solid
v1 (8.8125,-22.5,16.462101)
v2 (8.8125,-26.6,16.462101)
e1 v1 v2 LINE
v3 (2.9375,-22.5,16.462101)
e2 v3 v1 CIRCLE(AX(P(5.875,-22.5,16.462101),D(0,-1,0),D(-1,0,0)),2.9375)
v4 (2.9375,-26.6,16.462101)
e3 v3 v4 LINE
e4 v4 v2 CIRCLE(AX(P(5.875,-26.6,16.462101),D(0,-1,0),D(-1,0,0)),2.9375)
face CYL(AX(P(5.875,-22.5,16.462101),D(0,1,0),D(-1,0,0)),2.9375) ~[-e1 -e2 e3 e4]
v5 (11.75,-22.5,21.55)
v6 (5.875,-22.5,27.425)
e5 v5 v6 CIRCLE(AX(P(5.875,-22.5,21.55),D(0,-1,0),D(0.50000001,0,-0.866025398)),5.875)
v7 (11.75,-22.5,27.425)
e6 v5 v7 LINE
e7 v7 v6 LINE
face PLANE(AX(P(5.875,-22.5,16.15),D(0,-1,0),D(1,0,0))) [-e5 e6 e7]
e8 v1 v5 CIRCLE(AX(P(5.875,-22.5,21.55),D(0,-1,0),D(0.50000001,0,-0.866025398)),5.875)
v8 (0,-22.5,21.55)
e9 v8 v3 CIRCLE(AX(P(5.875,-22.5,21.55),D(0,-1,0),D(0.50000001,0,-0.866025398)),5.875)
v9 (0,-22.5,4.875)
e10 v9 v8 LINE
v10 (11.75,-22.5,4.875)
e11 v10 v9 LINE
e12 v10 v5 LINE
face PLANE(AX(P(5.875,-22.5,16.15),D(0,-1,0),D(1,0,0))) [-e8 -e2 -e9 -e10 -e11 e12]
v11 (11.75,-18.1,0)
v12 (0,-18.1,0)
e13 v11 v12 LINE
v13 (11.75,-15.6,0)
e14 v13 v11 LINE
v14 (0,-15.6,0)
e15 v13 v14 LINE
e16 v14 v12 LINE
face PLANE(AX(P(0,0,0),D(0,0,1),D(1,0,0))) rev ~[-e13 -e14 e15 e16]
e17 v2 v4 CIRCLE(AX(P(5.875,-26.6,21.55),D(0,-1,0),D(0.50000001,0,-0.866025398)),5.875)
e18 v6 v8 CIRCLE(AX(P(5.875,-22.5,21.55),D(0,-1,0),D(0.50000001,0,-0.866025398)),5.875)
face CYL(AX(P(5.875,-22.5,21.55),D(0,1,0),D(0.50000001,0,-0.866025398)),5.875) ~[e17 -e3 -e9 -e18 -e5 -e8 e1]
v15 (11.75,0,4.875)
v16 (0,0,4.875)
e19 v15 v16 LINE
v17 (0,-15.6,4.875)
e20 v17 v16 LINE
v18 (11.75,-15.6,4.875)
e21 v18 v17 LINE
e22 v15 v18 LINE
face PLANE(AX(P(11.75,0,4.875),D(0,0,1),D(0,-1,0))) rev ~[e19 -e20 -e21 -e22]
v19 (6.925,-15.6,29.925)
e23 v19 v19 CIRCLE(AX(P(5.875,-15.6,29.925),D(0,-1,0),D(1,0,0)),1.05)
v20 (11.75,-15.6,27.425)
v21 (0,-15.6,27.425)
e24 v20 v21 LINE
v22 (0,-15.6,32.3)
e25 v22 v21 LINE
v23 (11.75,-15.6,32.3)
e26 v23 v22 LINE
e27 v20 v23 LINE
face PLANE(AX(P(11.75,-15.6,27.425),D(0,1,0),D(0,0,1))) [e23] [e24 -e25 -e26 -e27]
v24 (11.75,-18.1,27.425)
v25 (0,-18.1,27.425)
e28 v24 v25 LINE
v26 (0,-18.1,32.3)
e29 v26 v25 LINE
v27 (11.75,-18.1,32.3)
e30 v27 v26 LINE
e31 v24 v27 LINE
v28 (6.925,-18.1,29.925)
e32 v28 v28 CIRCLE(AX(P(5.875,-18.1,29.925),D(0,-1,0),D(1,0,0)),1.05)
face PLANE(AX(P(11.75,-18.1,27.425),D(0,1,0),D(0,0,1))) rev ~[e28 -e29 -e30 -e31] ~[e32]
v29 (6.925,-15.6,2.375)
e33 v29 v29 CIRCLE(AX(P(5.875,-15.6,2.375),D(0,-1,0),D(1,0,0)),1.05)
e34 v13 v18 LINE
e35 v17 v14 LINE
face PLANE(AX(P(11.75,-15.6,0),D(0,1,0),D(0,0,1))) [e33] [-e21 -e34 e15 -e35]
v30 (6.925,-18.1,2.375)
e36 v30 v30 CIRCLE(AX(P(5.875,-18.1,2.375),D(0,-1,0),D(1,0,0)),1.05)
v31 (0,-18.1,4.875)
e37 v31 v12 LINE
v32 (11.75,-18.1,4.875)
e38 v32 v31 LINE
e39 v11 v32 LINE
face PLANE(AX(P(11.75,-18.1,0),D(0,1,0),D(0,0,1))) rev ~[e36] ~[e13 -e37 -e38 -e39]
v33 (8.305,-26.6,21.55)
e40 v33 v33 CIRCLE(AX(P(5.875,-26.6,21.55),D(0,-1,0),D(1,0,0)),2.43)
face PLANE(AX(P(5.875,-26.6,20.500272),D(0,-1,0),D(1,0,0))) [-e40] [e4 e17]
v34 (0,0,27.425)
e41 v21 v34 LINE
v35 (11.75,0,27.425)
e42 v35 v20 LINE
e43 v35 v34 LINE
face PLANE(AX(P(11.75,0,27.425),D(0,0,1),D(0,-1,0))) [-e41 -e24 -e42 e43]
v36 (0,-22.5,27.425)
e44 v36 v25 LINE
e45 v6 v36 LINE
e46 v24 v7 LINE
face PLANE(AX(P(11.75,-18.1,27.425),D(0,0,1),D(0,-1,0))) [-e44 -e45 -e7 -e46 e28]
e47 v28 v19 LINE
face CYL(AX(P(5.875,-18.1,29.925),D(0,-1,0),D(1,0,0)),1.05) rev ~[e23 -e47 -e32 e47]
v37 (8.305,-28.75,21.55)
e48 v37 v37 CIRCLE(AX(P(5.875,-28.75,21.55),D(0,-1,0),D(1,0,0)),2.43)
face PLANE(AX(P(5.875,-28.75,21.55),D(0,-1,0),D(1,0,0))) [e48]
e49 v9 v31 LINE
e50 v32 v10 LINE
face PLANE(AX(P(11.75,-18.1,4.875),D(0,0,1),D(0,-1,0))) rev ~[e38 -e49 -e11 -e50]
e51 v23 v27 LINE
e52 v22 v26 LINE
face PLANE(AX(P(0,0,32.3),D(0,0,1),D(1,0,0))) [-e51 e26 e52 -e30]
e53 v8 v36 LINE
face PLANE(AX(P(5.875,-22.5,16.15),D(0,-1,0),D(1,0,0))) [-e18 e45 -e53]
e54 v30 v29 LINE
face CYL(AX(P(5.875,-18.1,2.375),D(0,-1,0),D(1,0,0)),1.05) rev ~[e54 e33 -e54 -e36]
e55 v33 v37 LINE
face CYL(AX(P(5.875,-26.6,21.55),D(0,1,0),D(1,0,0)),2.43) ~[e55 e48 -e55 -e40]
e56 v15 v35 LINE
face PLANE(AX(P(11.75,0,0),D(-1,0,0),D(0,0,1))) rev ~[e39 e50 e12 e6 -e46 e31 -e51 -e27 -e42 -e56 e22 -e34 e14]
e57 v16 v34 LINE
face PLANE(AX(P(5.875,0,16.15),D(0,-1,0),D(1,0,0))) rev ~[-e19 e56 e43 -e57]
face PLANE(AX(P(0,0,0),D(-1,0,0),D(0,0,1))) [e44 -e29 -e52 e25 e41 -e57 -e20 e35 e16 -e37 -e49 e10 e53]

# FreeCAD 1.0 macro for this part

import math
import FreeCAD as App
import Part
import Sketcher

V = App.Vector
Q = App.Units.Quantity

doc = App.newDocument("Part")
body = doc.addObject("PartDesign::Body", "Body")

sketch1 = doc.addObject("Sketcher::SketchObject", "Sketch")
body.addObject(sketch1)
sketch1.AttachmentSupport = (doc.XZ_Plane, [""])
sketch1.MapMode = "FlatFace"
sketch1.addGeometry(Part.LineSegment(V(0, 32, 0), V(0, 0, 0)), False)
sketch1.addGeometry(Part.LineSegment(V(0, 0, 0), V(12, 0, 0)), False)
sketch1.addGeometry(Part.LineSegment(V(12, 0, 0), V(12, 32, 0)), False)
sketch1.addGeometry(Part.LineSegment(V(12, 32, 0), V(0, 32, 0)), False)
sketch1.addConstraint(Sketcher.Constraint("Coincident", 0, 2, 1, 1))
sketch1.addConstraint(Sketcher.Constraint("Coincident", 1, 2, 2, 1))
sketch1.addConstraint(Sketcher.Constraint("Coincident", 2, 2, 3, 1))
sketch1.addConstraint(Sketcher.Constraint("Coincident", 3, 2, 0, 1))
sketch1.addConstraint(Sketcher.Constraint("Vertical", 0))
sketch1.addConstraint(Sketcher.Constraint("Horizontal", 1))
sketch1.addConstraint(Sketcher.Constraint("Vertical", 2))
sketch1.addConstraint(Sketcher.Constraint("Horizontal", 3))
sketch1.addConstraint(Sketcher.Constraint("Coincident", 0, 2, -1, 1))
sketch1.addConstraint(Sketcher.Constraint("DistanceY", 0, 2, 0, 1, Q("32.3 mm")))
sketch1.addConstraint(Sketcher.Constraint("DistanceX", 1, 1, 1, 2, Q("11.75 mm")))
pad1 = doc.addObject("PartDesign::Pad", "Pad")
body.addObject(pad1)
pad1.Profile = sketch1
pad1.Length = 22.5

sketch2 = doc.addObject("Sketcher::SketchObject", "Sketch001")
body.addObject(sketch2)
sketch2.AttachmentSupport = (doc.YZ_Plane, [""])
sketch2.MapMode = "FlatFace"
sketch2.AttachmentOffset = App.Placement(V(0, 0, 11.75), App.Rotation())
sketch2.addGeometry(Part.LineSegment(V(-15.6, 27.4, 0), V(0, 27.4, 0)), False)
sketch2.addGeometry(Part.LineSegment(V(0, 27.4, 0), V(0, 32.3, 0)), False)
sketch2.addGeometry(Part.LineSegment(V(0, 32.3, 0), V(-15.6, 32.3, 0)), False)
sketch2.addGeometry(Part.LineSegment(V(-15.6, 32.3, 0), V(-15.6, 27.4, 0)), False)
sketch2.addGeometry(Part.LineSegment(V(-22.5, 27.4, 0), V(-18.1, 27.4, 0)), False)
sketch2.addGeometry(Part.LineSegment(V(-18.1, 27.4, 0), V(-18.1, 32.3, 0)), False)
sketch2.addGeometry(Part.LineSegment(V(-18.1, 32.3, 0), V(-22.5, 32.3, 0)), False)
sketch2.addGeometry(Part.LineSegment(V(-22.5, 32.3, 0), V(-22.5, 27.4, 0)), False)
sketch2.addGeometry(Part.LineSegment(V(-22.5, 0, 0), V(-18.1, 0, 0)), False)
sketch2.addGeometry(Part.LineSegment(V(-18.1, 0, 0), V(-18.1, 4.9, 0)), False)
sketch2.addGeometry(Part.LineSegment(V(-18.1, 4.9, 0), V(-22.5, 4.9, 0)), False)
sketch2.addGeometry(Part.LineSegment(V(-22.5, 4.9, 0), V(-22.5, 0, 0)), False)
sketch2.addGeometry(Part.LineSegment(V(-15.6, 0, 0), V(0, 0, 0)), False)
sketch2.addGeometry(Part.LineSegment(V(0, 0, 0), V(0, 4.9, 0)), False)
sketch2.addGeometry(Part.LineSegment(V(0, 4.9, 0), V(-15.6, 4.9, 0)), False)
sketch2.addGeometry(Part.LineSegment(V(-15.6, 4.9, 0), V(-15.6, 0, 0)), False)
sketch2.addConstraint(Sketcher.Constraint("Coincident", 0, 2, 1, 1))
sketch2.addConstraint(Sketcher.Constraint("Coincident", 1, 2, 2, 1))
sketch2.addConstraint(Sketcher.Constraint("Coincident", 2, 2, 3, 1))
sketch2.addConstraint(Sketcher.Constraint("Coincident", 3, 2, 0, 1))
sketch2.addConstraint(Sketcher.Constraint("Coincident", 4, 2, 5, 1))
sketch2.addConstraint(Sketcher.Constraint("Coincident", 5, 2, 6, 1))
sketch2.addConstraint(Sketcher.Constraint("Coincident", 6, 2, 7, 1))
sketch2.addConstraint(Sketcher.Constraint("Coincident", 7, 2, 4, 1))
sketch2.addConstraint(Sketcher.Constraint("Coincident", 8, 2, 9, 1))
sketch2.addConstraint(Sketcher.Constraint("Coincident", 9, 2, 10, 1))
sketch2.addConstraint(Sketcher.Constraint("Coincident", 10, 2, 11, 1))
sketch2.addConstraint(Sketcher.Constraint("Coincident", 11, 2, 8, 1))
sketch2.addConstraint(Sketcher.Constraint("Coincident", 12, 2, 13, 1))
sketch2.addConstraint(Sketcher.Constraint("Coincident", 13, 2, 14, 1))
sketch2.addConstraint(Sketcher.Constraint("Coincident", 14, 2, 15, 1))
sketch2.addConstraint(Sketcher.Constraint("Coincident", 15, 2, 12, 1))
sketch2.addConstraint(Sketcher.Constraint("Horizontal", 0))
sketch2.addConstraint(Sketcher.Constraint("Vertical", 1))
sketch2.addConstraint(Sketcher.Constraint("Horizontal", 2))
sketch2.addConstraint(Sketcher.Constraint("Vertical", 3))
sketch2.addConstraint(Sketcher.Constraint("Horizontal", 4))
sketch2.addConstraint(Sketcher.Constraint("Vertical", 5))
sketch2.addConstraint(Sketcher.Constraint("Horizontal", 6))
sketch2.addConstraint(Sketcher.Constraint("Vertical", 7))
sketch2.addConstraint(Sketcher.Constraint("Horizontal", 8))
sketch2.addConstraint(Sketcher.Constraint("Vertical", 9))
sketch2.addConstraint(Sketcher.Constraint("Horizontal", 10))
sketch2.addConstraint(Sketcher.Constraint("Vertical", 11))
sketch2.addConstraint(Sketcher.Constraint("Horizontal", 12))
sketch2.addConstraint(Sketcher.Constraint("Vertical", 13))
sketch2.addConstraint(Sketcher.Constraint("Horizontal", 14))
sketch2.addConstraint(Sketcher.Constraint("Vertical", 15))
sketch2.addConstraint(Sketcher.Constraint("Coincident", 12, 2, -1, 1))
sketch2.addConstraint(Sketcher.Constraint("PointOnObject", 0, 2, -2))
sketch2.addConstraint(Sketcher.Constraint("PointOnObject", 8, 2, -1))
sketch2.addConstraint(Sketcher.Constraint("Horizontal", 3, 2, 4, 2))
sketch2.addConstraint(Sketcher.Constraint("Horizontal", 2, 2, 5, 2))
sketch2.addConstraint(Sketcher.Constraint("Horizontal", 10, 2, 13, 2))
sketch2.addConstraint(Sketcher.Constraint("Vertical", 5, 2, 8, 2))
sketch2.addConstraint(Sketcher.Constraint("Vertical", 7, 2, 10, 2))
sketch2.addConstraint(Sketcher.Constraint("Vertical", 3, 2, 14, 2))
sketch2.addConstraint(Sketcher.Constraint("Equal", 7, 9))
sketch2.addConstraint(Sketcher.Constraint("DistanceX", 0, 1, 0, 2, Q("15.6 mm")))
sketch2.addConstraint(Sketcher.Constraint("DistanceX", 4, 1, 4, 2, Q("4.4 mm")))
sketch2.addConstraint(Sketcher.Constraint("DistanceY", -1, 1, 1, 2, Q("32.3 mm")))
sketch2.addConstraint(Sketcher.Constraint("DistanceX", 4, 2, -1, 1, Q("18.1 mm")))
sketch2.addConstraint(Sketcher.Constraint("DistanceY", 1, 1, 1, 2, Q("4.875 mm")))
pocket1 = doc.addObject("PartDesign::Pocket", "Pocket")
body.addObject(pocket1)
pocket1.Profile = sketch2
pocket1.Type = "ThroughAll"

sketch3 = doc.addObject("Sketcher::SketchObject", "Sketch002")
body.addObject(sketch3)
sketch3.AttachmentSupport = (doc.XZ_Plane, [""])
sketch3.MapMode = "FlatFace"
sketch3.AttachmentOffset = App.Placement(V(0, 0, 22.5), App.Rotation())
sketch3.addGeometry(Part.ArcOfCircle(Part.Circle(V(5.9, 21.6, 0), V(0, 0, 1), 5.9), math.radians(-60), math.radians(240)), False)
sketch3.addGeometry(Part.ArcOfCircle(Part.Circle(V(5.9, 16.5, 0), V(0, 0, 1), 2.9), math.radians(180), math.radians(360)), False)
sketch3.addConstraint(Sketcher.Constraint("Coincident", 0, 1, 1, 2))
sketch3.addConstraint(Sketcher.Constraint("Coincident", 1, 1, 0, 2))
sketch3.addConstraint(Sketcher.Constraint("Horizontal", 1, 3, 0, 1))
sketch3.addConstraint(Sketcher.Constraint("Horizontal", 0, 1, 1, 1))
sketch3.addConstraint(Sketcher.Constraint("Radius", 0, Q("5.875 mm")))
sketch3.addConstraint(Sketcher.Constraint("Radius", 1, Q("2.9375 mm")))
sketch3.addConstraint(Sketcher.Constraint("DistanceY", -1, 1, 0, 3, Q("21.55 mm")))
sketch3.addConstraint(Sketcher.Constraint("DistanceX", -1, 1, 0, 3, Q("5.875 mm")))
pad2 = doc.addObject("PartDesign::Pad", "Pad001")
body.addObject(pad2)
pad2.Profile = sketch3
pad2.Length = 4.1

sketch4 = doc.addObject("Sketcher::SketchObject", "Sketch003")
body.addObject(sketch4)
sketch4.AttachmentSupport = (doc.XZ_Plane, [""])
sketch4.MapMode = "FlatFace"
sketch4.AttachmentOffset = App.Placement(V(0, 0, 26.6), App.Rotation())
sketch4.addGeometry(Part.Circle(V(5.9, 21.6, 0), V(0, 0, 1), 2.4), False)
sketch4.addConstraint(Sketcher.Constraint("Diameter", 0, Q("4.86 mm")))
sketch4.addConstraint(Sketcher.Constraint("DistanceY", -1, 1, 0, 3, Q("21.55 mm")))
sketch4.addConstraint(Sketcher.Constraint("DistanceX", -1, 1, 0, 3, Q("5.875 mm")))
pad3 = doc.addObject("PartDesign::Pad", "Pad002")
body.addObject(pad3)
pad3.Profile = sketch4
pad3.Length = 2.15

sketch5 = doc.addObject("Sketcher::SketchObject", "Sketch004")
body.addObject(sketch5)
sketch5.AttachmentSupport = (doc.XZ_Plane, [""])
sketch5.MapMode = "FlatFace"
sketch5.AttachmentOffset = App.Placement(V(0, 0, 18.1), App.Rotation())
sketch5.addGeometry(Part.Circle(V(5.9, 29.9, 0), V(0, 0, 1), 1.1), False)
sketch5.addGeometry(Part.Circle(V(5.9, 2.4, 0), V(0, 0, 1), 1.1), False)
sketch5.addConstraint(Sketcher.Constraint("Equal", 0, 1))
sketch5.addConstraint(Sketcher.Constraint("Vertical", 0, 3, 1, 3))
sketch5.addConstraint(Sketcher.Constraint("Diameter", 0, Q("2.1 mm")))
sketch5.addConstraint(Sketcher.Constraint("DistanceY", 1, 3, 0, 3, Q("27.55 mm")))
sketch5.addConstraint(Sketcher.Constraint("DistanceX", -1, 1, 0, 3, Q("5.875 mm")))
sketch5.addConstraint(Sketcher.Constraint("DistanceY", -1, 1, 0, 3, Q("29.925 mm")))
pocket2 = doc.addObject("PartDesign::Pocket", "Pocket001")
body.addObject(pocket2)
pocket2.Profile = sketch5
pocket2.Length = 5

doc.recompute()
